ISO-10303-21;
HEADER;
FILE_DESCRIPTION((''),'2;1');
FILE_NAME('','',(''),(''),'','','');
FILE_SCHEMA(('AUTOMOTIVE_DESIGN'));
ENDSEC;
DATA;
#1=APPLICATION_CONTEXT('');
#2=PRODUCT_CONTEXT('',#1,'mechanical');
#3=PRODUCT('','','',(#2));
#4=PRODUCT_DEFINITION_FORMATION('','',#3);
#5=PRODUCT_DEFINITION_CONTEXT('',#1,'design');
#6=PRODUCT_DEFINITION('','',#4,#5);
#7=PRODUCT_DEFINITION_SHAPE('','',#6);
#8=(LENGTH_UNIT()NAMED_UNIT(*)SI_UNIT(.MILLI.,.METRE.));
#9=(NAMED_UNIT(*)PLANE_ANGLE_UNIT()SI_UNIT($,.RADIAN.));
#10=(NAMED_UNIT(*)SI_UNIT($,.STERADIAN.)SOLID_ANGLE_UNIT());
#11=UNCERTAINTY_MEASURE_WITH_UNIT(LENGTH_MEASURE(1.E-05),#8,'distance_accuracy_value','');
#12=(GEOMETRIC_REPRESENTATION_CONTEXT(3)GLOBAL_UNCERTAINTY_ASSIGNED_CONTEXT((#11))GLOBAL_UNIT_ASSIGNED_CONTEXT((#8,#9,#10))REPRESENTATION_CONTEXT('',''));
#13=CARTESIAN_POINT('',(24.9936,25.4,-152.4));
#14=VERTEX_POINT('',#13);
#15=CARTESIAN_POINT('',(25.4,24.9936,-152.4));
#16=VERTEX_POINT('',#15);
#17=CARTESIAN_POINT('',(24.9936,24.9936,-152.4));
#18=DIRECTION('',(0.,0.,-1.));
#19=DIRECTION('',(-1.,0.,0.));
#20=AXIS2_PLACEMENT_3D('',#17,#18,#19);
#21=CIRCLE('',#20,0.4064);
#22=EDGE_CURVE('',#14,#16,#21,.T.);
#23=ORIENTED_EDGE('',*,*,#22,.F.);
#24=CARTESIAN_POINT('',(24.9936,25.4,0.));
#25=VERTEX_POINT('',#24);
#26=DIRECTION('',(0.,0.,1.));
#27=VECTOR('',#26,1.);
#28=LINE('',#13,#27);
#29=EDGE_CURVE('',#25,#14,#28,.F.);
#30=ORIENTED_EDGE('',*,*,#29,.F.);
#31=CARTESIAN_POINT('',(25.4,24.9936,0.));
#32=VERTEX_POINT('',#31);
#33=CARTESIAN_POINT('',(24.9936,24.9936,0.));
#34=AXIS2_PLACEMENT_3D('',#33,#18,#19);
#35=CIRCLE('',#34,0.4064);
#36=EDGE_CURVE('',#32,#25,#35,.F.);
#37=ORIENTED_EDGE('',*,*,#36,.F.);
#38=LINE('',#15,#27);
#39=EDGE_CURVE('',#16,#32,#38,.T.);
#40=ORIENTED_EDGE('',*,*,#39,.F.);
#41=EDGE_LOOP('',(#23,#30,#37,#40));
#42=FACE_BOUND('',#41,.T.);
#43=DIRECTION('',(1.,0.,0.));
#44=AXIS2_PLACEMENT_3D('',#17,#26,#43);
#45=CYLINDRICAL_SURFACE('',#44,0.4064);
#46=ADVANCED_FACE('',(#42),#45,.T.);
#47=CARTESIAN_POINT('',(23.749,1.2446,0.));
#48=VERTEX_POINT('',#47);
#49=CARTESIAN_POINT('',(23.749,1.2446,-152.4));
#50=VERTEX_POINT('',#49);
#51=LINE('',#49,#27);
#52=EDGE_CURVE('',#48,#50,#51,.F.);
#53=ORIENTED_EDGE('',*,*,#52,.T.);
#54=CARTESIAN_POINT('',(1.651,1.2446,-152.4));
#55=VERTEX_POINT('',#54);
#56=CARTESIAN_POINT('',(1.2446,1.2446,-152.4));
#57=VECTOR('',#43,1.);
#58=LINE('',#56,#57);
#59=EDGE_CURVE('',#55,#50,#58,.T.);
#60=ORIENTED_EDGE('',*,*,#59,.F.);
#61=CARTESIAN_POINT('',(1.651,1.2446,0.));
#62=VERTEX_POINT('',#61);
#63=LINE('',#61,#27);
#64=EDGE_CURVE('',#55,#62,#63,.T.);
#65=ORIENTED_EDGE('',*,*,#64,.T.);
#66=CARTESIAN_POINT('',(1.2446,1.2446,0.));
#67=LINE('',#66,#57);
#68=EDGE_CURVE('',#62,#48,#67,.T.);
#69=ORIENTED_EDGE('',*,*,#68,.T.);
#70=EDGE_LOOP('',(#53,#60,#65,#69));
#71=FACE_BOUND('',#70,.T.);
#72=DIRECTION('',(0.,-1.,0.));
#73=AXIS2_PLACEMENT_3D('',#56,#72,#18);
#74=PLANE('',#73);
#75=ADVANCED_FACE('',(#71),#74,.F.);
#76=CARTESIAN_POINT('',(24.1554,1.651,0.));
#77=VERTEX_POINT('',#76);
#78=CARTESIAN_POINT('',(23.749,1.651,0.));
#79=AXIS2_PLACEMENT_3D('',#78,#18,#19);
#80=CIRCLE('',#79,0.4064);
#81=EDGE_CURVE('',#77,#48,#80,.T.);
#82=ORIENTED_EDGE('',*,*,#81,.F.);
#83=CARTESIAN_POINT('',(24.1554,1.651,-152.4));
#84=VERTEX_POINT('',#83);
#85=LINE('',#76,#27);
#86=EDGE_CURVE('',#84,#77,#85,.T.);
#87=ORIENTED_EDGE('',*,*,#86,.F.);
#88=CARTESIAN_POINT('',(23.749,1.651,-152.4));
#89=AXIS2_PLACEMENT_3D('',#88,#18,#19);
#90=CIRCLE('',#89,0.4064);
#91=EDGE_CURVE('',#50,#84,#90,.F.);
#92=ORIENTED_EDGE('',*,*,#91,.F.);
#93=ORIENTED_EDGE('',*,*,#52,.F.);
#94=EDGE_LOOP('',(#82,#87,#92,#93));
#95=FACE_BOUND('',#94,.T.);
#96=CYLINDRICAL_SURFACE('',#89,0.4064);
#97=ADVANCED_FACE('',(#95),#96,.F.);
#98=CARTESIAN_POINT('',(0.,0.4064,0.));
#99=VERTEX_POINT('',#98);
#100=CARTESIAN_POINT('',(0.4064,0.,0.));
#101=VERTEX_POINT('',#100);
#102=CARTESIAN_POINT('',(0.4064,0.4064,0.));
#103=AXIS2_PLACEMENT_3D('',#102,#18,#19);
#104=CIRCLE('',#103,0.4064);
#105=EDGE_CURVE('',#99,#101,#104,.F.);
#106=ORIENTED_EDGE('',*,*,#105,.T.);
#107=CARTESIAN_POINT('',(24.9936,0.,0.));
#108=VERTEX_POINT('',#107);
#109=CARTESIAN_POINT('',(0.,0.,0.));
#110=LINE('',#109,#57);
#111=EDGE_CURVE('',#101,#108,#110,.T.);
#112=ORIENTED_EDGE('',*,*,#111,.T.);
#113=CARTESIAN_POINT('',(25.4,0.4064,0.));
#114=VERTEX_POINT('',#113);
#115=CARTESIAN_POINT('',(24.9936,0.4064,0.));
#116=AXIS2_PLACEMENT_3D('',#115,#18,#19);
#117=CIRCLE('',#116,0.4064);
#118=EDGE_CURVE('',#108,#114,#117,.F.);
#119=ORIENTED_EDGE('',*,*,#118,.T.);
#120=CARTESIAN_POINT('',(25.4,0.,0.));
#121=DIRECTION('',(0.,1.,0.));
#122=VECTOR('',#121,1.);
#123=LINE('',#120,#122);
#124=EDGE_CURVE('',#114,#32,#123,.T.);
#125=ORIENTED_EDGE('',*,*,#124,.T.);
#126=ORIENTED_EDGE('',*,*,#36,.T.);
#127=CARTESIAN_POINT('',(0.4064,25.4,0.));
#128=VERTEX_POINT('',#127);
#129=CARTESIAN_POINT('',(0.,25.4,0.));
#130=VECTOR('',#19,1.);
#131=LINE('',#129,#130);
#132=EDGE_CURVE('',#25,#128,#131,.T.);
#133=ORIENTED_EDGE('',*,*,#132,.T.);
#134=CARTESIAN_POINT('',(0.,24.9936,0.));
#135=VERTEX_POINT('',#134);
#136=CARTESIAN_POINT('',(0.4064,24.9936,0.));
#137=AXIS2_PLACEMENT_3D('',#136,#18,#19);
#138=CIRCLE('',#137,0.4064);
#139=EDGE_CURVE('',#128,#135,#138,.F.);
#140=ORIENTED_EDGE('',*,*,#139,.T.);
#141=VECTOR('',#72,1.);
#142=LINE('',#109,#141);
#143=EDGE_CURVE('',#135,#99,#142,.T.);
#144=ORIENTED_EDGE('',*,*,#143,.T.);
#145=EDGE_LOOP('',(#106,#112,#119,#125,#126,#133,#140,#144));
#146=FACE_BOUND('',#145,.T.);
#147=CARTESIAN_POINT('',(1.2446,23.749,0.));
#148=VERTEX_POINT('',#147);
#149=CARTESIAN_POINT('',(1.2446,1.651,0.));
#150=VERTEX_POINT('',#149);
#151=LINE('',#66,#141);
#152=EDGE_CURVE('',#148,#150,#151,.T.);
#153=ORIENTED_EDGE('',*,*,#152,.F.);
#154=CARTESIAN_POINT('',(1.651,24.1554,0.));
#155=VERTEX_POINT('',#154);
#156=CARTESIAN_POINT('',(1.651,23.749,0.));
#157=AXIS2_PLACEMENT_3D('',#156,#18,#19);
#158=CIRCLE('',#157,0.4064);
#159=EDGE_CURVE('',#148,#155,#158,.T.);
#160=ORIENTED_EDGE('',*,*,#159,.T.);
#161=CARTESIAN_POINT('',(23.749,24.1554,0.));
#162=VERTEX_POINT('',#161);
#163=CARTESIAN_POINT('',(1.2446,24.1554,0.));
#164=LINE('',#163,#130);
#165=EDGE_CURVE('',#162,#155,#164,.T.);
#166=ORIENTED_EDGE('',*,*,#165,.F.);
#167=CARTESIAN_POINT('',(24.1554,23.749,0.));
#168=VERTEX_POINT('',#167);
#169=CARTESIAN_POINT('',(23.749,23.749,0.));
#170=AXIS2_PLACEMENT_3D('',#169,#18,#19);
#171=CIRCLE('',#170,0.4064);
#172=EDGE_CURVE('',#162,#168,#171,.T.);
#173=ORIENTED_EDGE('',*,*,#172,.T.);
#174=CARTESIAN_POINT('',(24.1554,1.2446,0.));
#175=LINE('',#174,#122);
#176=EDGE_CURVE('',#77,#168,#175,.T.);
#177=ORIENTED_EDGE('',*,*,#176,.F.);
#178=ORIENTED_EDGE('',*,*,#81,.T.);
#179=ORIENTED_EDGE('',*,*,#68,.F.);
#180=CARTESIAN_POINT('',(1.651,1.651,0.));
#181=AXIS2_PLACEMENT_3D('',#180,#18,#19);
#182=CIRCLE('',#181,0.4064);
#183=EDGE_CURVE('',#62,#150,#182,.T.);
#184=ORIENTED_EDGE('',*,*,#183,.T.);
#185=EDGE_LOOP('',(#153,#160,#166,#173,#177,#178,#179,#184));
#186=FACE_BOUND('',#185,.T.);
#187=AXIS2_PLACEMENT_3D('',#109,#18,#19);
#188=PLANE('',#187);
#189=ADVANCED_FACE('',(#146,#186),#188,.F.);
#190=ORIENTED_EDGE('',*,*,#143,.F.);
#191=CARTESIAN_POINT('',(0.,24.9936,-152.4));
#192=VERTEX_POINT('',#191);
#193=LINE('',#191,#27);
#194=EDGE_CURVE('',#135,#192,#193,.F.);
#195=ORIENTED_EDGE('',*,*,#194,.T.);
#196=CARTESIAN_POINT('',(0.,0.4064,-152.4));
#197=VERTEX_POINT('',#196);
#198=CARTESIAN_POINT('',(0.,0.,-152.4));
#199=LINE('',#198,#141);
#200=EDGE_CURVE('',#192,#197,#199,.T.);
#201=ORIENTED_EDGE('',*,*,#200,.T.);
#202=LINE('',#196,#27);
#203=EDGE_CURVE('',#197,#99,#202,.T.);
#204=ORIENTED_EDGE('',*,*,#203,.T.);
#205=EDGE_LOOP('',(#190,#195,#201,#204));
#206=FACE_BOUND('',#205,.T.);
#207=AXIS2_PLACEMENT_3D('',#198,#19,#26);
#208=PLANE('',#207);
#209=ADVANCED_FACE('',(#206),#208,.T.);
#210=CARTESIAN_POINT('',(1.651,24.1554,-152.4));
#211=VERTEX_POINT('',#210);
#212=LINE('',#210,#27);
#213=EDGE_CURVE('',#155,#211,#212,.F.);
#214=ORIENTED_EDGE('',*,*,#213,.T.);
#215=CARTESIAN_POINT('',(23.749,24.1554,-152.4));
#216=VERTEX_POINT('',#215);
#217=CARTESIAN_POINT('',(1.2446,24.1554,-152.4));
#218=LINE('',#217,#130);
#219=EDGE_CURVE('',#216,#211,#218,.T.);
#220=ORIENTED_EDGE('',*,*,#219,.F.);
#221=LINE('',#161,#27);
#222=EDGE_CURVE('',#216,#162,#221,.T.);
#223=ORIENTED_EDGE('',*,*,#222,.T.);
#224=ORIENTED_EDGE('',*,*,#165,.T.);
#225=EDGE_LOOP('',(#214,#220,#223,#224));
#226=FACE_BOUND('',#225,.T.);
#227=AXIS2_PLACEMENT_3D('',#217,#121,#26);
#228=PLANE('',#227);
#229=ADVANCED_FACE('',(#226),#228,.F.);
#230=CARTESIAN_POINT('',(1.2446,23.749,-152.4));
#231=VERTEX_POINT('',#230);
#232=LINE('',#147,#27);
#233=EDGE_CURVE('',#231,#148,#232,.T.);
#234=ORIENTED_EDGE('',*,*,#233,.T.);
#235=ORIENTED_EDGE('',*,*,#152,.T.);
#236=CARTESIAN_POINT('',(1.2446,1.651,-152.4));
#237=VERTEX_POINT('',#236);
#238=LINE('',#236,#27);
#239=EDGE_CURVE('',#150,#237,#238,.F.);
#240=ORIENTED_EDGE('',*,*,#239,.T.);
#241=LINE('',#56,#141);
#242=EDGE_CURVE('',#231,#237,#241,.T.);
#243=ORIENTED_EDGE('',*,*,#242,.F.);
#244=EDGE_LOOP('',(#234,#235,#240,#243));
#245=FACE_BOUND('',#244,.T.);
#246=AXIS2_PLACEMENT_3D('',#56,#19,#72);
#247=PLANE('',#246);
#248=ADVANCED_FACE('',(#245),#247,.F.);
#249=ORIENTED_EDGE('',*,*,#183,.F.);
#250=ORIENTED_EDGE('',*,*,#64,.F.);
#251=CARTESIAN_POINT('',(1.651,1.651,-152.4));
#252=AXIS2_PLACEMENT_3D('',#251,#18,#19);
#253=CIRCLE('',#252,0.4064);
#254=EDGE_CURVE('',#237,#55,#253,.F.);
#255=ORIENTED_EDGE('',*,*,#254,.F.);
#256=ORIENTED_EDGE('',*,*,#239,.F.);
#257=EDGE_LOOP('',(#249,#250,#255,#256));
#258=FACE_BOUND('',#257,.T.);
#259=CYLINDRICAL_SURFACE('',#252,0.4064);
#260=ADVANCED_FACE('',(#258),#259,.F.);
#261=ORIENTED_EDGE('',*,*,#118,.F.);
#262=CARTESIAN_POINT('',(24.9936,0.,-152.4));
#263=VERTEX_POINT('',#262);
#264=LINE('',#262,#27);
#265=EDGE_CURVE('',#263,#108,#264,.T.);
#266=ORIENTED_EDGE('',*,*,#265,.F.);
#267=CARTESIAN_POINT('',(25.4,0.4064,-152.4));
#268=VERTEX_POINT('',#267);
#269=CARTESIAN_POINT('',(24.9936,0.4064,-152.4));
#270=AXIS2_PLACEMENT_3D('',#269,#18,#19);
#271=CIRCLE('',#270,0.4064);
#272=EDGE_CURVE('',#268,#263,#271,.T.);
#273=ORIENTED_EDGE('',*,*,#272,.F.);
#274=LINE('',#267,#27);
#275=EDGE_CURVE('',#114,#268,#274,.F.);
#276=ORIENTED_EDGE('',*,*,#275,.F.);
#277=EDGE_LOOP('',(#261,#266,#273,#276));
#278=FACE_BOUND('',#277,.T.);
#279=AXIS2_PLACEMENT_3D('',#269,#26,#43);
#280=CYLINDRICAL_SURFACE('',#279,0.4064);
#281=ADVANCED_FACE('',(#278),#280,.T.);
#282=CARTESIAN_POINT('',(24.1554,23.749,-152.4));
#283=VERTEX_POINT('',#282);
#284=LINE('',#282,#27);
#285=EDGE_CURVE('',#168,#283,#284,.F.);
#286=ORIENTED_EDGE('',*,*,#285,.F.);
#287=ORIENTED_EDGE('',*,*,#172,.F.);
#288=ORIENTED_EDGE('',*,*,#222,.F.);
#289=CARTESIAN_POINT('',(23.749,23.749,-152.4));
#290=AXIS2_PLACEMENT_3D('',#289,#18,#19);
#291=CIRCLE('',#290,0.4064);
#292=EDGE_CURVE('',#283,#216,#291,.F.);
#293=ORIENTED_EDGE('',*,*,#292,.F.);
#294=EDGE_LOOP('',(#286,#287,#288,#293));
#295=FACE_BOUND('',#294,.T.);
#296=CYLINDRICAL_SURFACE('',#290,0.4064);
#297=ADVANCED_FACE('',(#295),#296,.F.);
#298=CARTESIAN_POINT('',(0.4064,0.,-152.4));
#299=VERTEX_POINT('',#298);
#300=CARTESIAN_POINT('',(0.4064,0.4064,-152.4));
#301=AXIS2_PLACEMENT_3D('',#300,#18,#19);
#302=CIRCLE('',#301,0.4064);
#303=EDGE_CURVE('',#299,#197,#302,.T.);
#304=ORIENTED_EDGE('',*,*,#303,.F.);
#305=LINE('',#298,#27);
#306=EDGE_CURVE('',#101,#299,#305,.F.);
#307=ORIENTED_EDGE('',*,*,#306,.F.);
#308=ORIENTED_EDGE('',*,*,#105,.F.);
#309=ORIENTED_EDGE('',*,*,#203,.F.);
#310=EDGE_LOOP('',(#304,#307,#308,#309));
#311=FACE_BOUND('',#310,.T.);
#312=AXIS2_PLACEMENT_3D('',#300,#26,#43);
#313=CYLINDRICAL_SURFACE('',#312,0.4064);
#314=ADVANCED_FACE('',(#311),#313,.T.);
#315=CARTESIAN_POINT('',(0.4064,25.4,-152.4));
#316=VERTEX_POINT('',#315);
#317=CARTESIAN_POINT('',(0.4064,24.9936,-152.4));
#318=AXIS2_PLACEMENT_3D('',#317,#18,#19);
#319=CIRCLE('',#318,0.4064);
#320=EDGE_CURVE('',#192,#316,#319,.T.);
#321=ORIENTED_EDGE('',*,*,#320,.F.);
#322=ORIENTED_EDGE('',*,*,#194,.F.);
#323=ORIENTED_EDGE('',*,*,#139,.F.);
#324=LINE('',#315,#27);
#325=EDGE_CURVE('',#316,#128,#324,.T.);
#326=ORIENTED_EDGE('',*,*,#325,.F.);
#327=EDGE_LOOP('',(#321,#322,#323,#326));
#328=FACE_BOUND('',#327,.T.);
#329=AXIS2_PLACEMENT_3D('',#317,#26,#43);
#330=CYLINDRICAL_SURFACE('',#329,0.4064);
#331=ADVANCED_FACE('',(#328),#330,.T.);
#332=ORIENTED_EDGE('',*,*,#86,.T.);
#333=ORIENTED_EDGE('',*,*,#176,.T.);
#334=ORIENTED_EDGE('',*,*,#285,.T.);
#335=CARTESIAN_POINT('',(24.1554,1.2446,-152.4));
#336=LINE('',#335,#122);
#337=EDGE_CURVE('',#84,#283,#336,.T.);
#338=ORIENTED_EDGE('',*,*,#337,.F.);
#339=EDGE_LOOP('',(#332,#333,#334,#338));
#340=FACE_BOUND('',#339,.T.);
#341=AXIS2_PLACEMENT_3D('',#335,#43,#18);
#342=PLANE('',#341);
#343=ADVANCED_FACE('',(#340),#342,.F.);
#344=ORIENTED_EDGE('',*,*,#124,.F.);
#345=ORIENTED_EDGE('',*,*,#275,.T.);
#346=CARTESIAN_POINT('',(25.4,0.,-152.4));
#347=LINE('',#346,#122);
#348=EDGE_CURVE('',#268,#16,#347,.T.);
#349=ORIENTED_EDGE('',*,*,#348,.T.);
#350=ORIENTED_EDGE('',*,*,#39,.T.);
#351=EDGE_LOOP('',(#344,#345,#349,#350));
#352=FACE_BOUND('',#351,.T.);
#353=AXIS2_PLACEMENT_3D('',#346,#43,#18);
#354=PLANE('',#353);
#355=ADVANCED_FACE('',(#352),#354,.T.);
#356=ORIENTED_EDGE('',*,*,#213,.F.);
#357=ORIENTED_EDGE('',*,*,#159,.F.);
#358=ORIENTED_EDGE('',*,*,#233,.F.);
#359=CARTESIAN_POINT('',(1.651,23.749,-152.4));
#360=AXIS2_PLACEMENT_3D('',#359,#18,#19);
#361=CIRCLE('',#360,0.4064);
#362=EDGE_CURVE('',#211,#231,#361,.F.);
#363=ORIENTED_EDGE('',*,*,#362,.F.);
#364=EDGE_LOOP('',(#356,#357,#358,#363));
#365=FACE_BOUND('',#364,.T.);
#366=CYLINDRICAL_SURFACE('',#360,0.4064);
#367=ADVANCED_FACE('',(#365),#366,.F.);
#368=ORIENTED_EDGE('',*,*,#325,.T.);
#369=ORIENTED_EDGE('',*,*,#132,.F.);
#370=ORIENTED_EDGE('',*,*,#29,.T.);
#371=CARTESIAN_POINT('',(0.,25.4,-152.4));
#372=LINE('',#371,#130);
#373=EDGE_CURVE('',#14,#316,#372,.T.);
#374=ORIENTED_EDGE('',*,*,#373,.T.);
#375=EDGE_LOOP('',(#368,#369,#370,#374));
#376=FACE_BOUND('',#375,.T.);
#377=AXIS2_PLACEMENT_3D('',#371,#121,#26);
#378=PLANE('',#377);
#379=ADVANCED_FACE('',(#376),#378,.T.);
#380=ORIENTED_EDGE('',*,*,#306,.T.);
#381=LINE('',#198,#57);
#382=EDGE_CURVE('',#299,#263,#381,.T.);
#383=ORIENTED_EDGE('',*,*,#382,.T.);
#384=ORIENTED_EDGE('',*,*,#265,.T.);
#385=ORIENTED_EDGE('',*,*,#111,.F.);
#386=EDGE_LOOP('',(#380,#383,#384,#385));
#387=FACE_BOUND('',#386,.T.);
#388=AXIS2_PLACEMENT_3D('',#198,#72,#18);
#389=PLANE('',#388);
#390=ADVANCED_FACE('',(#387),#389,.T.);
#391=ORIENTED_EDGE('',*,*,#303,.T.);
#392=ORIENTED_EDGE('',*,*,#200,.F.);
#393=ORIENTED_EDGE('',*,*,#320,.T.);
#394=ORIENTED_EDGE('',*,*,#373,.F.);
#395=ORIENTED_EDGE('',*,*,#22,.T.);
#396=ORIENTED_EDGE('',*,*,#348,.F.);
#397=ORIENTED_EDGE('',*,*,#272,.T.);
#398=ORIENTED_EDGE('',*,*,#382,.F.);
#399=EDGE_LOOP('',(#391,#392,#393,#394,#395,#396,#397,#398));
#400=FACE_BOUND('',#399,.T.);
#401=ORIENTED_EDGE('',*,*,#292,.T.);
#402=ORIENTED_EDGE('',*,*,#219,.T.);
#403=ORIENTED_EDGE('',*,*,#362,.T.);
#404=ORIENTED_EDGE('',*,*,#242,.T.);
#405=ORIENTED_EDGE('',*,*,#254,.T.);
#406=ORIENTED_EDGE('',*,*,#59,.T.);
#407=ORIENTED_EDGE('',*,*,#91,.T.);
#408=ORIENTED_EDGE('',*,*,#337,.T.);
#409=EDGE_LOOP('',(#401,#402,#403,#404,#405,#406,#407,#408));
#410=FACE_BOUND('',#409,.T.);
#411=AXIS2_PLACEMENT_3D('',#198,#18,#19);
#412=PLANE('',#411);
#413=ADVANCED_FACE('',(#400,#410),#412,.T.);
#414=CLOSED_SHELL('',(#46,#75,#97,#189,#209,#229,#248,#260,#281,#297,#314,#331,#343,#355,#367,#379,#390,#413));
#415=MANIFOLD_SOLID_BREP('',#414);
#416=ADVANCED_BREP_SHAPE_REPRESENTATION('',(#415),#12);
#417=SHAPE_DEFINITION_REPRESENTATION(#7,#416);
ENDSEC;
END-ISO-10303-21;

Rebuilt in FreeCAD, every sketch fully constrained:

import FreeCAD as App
import Part
import Sketcher
Q = App.Units.Quantity


def edges_at(feature, points):
    """Names of the edges that pass closest to the given points."""
    edges = feature.Shape.Edges
    near = lambda p: min(range(len(edges)), key=lambda i: edges[i].distToShape(Part.Vertex(*p))[0])
    return sorted({f"Edge{near(p) + 1}" for p in points})

doc = App.newDocument("Part")
body = doc.addObject("PartDesign::Body", "Body")

# Sketch on XY plane
sketch1 = doc.addObject("Sketcher::SketchObject", "Sketch")
body.addObject(sketch1)
sketch1.AttachmentSupport = (doc.XY_Plane, [""])
sketch1.MapMode = "FlatFace"
sketch1.addGeometry([
    Part.LineSegment(App.Vector(0, 25, 0), App.Vector(0, 0, 0)),  # 0
    Part.LineSegment(App.Vector(0, 0, 0), App.Vector(25, 0, 0)),  # 1
    Part.LineSegment(App.Vector(25, 0, 0), App.Vector(25, 25, 0)),  # 2
    Part.LineSegment(App.Vector(25, 25, 0), App.Vector(0, 25, 0)),  # 3
    Part.LineSegment(App.Vector(24, 1, 0), App.Vector(1, 1, 0)),  # 4
    Part.LineSegment(App.Vector(1, 1, 0), App.Vector(1, 24, 0)),  # 5
    Part.LineSegment(App.Vector(1, 24, 0), App.Vector(24, 24, 0)),  # 6
    Part.LineSegment(App.Vector(24, 24, 0), App.Vector(24, 1, 0)),  # 7
], False)
sketch1.addConstraint([
    Sketcher.Constraint("Coincident", 0, 2, 1, 1),
    Sketcher.Constraint("Coincident", 1, 2, 2, 1),
    Sketcher.Constraint("Coincident", 2, 2, 3, 1),
    Sketcher.Constraint("Coincident", 3, 2, 0, 1),
    Sketcher.Constraint("Coincident", 4, 2, 5, 1),
    Sketcher.Constraint("Coincident", 5, 2, 6, 1),
    Sketcher.Constraint("Coincident", 6, 2, 7, 1),
    Sketcher.Constraint("Coincident", 7, 2, 4, 1),
    Sketcher.Constraint("Vertical", 0),
    Sketcher.Constraint("Horizontal", 1),
    Sketcher.Constraint("Vertical", 2),
    Sketcher.Constraint("Horizontal", 3),
    Sketcher.Constraint("Horizontal", 4),
    Sketcher.Constraint("Vertical", 5),
    Sketcher.Constraint("Horizontal", 6),
    Sketcher.Constraint("Vertical", 7),
    Sketcher.Constraint("Coincident", 0, 2, -1, 1),
    Sketcher.Constraint("Equal", 3, 0),
    Sketcher.Constraint("Equal", 6, 5),
    Sketcher.Constraint("DistanceX", 1, 1, 1, 2, Q("1 in")),
    Sketcher.Constraint("DistanceX", 4, 2, 4, 1, Q("0.902 in")),
    Sketcher.Constraint("DistanceX", -1, 1, 4, 2, Q("0.049 in")),
    Sketcher.Constraint("DistanceY", -1, 1, 4, 2, Q("0.049 in")),
])
pad1 = doc.addObject("PartDesign::Pad", "Pad")
body.addObject(pad1)
pad1.Profile = sketch1
pad1.Length = Q("6 in")
pad1.Reversed = True
doc.recompute()

fillet = doc.addObject("PartDesign::Fillet", "Fillet")
body.addObject(fillet)
fillet.Base = (pad1, edges_at(pad1, [
    (0, 25.4, -76.2),
    (25.4, 25.4, -76.2),
    (25.4, 0, -76.2),
    (0, 0, -76.2),
]))
fillet.Radius = Q("0.016 in")
doc.recompute()

fillet2 = doc.addObject("PartDesign::Fillet", "Fillet001")
body.addObject(fillet2)
fillet2.Base = (fillet, edges_at(fillet, [
    (1.245, 1.245, -76.2),
    (1.245, 24.155, -76.2),
    (24.155, 24.155, -76.2),
    (24.155, 1.245, -76.2),
]))
fillet2.Radius = Q("0.016 in")

doc.recompute()
